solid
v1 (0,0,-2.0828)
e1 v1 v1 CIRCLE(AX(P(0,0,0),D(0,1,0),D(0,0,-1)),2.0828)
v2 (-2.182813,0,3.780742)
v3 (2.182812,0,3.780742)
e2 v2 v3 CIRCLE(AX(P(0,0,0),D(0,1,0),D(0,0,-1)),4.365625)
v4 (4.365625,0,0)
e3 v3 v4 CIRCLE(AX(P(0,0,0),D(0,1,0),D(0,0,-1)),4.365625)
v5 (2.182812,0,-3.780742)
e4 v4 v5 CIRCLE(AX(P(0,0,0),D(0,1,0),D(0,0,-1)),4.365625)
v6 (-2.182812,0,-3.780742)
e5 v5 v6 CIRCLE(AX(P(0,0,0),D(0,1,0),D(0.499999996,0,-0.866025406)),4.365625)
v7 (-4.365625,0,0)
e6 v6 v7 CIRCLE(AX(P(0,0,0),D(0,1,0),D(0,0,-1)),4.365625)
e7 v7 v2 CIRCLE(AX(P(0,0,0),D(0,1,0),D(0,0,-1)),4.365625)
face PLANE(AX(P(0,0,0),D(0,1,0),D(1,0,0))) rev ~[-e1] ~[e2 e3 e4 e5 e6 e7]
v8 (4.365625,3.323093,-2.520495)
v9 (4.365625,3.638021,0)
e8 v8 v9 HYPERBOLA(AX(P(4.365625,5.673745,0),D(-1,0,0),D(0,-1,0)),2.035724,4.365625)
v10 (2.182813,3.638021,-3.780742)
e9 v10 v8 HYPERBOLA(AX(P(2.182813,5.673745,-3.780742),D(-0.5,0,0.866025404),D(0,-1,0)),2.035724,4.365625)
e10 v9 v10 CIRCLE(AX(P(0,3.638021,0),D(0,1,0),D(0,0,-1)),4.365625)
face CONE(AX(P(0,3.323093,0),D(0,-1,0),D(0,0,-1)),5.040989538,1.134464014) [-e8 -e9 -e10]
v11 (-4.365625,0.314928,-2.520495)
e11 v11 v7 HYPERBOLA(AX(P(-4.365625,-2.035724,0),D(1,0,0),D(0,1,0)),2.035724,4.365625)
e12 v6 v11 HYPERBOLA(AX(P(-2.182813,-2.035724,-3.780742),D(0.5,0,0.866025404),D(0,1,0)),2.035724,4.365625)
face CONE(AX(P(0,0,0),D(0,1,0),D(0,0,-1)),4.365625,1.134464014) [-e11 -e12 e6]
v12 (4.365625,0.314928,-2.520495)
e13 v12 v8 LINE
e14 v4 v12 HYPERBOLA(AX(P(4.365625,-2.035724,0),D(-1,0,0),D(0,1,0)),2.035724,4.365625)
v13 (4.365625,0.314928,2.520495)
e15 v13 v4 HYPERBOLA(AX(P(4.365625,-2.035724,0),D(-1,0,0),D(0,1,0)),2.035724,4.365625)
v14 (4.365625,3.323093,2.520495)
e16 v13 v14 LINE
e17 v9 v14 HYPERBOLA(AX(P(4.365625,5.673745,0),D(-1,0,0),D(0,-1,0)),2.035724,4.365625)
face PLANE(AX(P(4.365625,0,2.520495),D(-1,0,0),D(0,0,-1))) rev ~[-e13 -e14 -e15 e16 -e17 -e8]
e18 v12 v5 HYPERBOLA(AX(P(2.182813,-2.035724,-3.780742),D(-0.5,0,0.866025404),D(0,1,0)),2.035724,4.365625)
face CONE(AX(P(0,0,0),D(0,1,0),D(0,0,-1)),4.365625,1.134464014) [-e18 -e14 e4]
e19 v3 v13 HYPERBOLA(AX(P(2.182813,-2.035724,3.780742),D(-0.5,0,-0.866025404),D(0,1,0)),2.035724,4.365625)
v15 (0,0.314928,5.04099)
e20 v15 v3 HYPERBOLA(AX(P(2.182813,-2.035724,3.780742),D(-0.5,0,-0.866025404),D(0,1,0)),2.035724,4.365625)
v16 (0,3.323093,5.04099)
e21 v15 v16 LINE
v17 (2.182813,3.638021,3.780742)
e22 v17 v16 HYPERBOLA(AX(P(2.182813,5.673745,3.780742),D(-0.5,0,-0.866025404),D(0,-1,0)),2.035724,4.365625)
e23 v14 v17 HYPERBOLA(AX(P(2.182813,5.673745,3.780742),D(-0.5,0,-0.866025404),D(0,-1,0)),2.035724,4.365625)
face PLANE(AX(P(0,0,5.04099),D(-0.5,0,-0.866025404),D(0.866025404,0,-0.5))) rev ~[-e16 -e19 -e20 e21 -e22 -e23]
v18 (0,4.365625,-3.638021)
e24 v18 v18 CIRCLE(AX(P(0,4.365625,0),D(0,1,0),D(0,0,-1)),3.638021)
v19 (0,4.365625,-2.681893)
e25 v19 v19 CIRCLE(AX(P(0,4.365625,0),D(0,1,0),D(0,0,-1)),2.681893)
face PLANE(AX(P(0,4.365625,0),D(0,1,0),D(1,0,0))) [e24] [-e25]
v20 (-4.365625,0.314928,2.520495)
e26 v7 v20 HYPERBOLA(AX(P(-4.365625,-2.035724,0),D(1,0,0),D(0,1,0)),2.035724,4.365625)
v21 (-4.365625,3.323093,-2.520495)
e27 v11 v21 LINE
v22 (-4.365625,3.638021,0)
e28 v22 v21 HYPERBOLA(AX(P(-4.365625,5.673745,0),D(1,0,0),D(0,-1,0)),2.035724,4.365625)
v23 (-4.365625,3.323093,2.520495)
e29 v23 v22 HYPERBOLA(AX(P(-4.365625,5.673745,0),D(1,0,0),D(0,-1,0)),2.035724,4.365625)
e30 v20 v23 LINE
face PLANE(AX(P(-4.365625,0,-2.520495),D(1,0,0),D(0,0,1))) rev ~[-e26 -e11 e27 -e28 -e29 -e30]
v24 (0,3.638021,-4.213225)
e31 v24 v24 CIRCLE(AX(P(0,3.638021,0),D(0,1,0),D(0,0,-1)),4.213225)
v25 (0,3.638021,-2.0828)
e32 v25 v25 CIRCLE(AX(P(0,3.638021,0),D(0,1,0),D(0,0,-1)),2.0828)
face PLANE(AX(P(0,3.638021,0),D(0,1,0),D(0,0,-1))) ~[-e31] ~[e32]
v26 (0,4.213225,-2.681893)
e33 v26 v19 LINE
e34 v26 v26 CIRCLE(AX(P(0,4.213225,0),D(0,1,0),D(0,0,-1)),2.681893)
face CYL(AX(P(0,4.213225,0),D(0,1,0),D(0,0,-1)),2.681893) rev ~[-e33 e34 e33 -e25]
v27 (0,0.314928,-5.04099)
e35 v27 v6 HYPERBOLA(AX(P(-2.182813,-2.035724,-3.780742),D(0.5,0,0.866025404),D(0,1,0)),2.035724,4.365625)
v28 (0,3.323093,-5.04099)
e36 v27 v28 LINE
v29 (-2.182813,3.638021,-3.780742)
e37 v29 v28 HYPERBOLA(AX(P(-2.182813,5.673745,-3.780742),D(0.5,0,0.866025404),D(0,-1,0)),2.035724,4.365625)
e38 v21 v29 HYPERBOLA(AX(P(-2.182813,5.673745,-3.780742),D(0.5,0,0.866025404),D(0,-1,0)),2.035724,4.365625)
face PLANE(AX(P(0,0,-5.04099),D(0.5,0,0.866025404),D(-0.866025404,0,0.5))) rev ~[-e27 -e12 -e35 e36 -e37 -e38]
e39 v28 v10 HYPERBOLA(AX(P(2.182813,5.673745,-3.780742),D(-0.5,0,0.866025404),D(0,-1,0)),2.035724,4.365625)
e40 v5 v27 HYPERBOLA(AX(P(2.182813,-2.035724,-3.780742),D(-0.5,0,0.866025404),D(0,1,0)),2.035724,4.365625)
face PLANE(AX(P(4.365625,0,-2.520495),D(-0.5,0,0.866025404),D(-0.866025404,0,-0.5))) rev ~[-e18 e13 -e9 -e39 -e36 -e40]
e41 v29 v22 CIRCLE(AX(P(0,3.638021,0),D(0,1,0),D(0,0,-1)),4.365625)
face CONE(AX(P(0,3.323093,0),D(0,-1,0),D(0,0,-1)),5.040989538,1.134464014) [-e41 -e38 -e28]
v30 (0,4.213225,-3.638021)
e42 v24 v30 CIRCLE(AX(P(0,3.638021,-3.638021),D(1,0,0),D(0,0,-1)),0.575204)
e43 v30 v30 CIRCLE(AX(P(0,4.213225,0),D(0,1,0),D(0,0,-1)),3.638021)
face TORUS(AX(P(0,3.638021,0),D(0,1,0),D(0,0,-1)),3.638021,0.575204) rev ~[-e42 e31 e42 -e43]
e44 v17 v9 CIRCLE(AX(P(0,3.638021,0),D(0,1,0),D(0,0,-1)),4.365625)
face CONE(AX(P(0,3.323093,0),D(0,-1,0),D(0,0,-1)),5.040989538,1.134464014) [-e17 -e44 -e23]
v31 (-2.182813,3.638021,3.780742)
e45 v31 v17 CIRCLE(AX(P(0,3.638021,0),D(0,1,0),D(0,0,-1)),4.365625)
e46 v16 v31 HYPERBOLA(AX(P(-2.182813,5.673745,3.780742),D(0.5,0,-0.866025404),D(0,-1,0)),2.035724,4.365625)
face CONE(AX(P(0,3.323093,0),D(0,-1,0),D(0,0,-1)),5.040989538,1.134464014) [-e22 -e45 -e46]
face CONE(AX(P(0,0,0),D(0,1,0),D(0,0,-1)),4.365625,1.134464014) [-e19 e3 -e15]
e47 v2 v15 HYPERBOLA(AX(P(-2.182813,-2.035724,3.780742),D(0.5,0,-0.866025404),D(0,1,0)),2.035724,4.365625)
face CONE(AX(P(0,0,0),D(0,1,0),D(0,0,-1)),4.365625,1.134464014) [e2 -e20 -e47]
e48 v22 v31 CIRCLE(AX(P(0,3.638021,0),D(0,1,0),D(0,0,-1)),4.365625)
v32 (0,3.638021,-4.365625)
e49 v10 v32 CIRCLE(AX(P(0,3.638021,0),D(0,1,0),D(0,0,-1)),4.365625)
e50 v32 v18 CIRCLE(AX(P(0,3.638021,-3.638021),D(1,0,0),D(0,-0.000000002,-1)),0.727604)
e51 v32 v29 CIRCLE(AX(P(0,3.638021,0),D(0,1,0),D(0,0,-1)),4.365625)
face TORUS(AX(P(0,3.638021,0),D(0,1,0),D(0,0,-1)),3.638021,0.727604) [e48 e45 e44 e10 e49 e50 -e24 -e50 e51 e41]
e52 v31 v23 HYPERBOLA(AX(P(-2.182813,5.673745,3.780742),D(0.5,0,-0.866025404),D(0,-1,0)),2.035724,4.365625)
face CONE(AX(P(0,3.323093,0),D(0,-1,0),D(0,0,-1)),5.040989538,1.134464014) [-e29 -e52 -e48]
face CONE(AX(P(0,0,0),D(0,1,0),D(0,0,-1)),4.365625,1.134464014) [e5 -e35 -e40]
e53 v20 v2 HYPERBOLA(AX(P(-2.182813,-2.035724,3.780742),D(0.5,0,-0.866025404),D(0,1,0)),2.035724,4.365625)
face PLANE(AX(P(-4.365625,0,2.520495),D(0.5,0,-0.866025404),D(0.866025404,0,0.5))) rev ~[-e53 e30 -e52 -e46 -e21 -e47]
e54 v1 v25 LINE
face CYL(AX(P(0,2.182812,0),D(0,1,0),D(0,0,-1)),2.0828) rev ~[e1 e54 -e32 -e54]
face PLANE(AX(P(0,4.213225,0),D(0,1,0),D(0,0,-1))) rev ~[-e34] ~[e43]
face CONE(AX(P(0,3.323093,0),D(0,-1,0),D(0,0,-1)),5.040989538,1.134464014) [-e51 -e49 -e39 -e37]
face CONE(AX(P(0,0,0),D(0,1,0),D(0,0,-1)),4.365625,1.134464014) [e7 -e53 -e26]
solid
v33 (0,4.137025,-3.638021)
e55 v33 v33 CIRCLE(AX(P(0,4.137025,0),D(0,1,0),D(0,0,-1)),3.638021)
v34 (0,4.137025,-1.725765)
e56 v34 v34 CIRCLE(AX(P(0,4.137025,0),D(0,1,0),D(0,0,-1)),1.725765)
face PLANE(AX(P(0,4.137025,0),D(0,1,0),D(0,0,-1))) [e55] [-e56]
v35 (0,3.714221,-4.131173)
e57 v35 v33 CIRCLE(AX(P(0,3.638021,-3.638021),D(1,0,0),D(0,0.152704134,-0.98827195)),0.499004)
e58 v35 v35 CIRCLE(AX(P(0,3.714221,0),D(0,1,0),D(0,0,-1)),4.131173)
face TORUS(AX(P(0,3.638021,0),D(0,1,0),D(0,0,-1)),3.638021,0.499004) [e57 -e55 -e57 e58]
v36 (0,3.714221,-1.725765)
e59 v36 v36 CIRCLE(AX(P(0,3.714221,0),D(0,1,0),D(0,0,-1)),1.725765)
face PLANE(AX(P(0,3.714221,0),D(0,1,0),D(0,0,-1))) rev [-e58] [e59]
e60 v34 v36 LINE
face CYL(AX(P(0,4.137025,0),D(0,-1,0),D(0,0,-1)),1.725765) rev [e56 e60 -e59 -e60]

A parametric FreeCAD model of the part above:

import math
import FreeCAD as App
import Part
import Sketcher
from FreeCAD import Vector
Q = App.Units.Quantity

doc = App.newDocument("Part")
body = doc.addObject("PartDesign::Body", "Body")

# Sketch on XZ plane
sketch1 = doc.addObject("Sketcher::SketchObject", "Sketch")
body.addObject(sketch1)
sketch1.AttachmentSupport = (doc.XZ_Plane, [""])
sketch1.MapMode = "FlatFace"
sketch1.addGeometry([
    Part.LineSegment(Vector(0, -5.04099, 0), Vector(-4.365625, -2.520495, 0)),  # 0
    Part.LineSegment(Vector(-4.365625, -2.520495, 0), Vector(-4.365625, 2.520495, 0)),  # 1
    Part.LineSegment(Vector(-4.365625, 2.520495, 0), Vector(0, 5.04099, 0)),  # 2
    Part.LineSegment(Vector(0, 5.04099, 0), Vector(4.365625, 2.520495, 0)),  # 3
    Part.LineSegment(Vector(4.365625, 2.520495, 0), Vector(4.365625, -2.520495, 0)),  # 4
    Part.LineSegment(Vector(4.365625, -2.520495, 0), Vector(0, -5.04099, 0)),  # 5
], False)
sketch1.addConstraint([
    Sketcher.Constraint("Coincident", 0, 2, 1, 1),
    Sketcher.Constraint("Coincident", 1, 2, 2, 1),
    Sketcher.Constraint("Coincident", 2, 2, 3, 1),
    Sketcher.Constraint("Coincident", 3, 2, 4, 1),
    Sketcher.Constraint("Coincident", 4, 2, 5, 1),
    Sketcher.Constraint("Coincident", 5, 2, 0, 1),
    Sketcher.Constraint("Vertical", 1),
    Sketcher.Constraint("Vertical", 4),
    Sketcher.Constraint("Symmetric", 0, 2, 3, 2, -1, 1),
    Sketcher.Constraint("Symmetric", 2, 2, 5, 2, -1, 1),
    Sketcher.Constraint("PointOnObject", 2, 2, -2),
    Sketcher.Constraint("Parallel", 2, 5),
    Sketcher.Constraint("Horizontal", 1, 2, 3, 2),
    Sketcher.Constraint("Angle", 0, Q("150 deg")),
    Sketcher.Constraint("DistanceX", 0, 2, -1, 1, Q("0.171875 in")),
    Sketcher.Constraint("DistanceY", 1, 1, 1, 2, Q("5.04099 mm")),
])
pad1 = doc.addObject("PartDesign::Pad", "Pad")
body.addObject(pad1)
pad1.Profile = sketch1
pad1.Length = Q("0.171875 in")
pad1.Reversed = True
body2 = doc.addObject("PartDesign::Body", "Body001")

# Sketch on YZ plane
sketch2 = doc.addObject("Sketcher::SketchObject", "Sketch001")
body2.addObject(sketch2)
sketch2.AttachmentSupport = (doc.getObject("YZ_Plane001"), [""])
sketch2.MapMode = "FlatFace"
sketch2.addGeometry([
    Part.LineSegment(Vector(4.365625, 0, 0), Vector(0, 0, 0)),
    Part.LineSegment(Vector(0, 0, 0), Vector(0, -2.0828, 0)),
    Part.LineSegment(Vector(0, -2.0828, 0), Vector(4.365625, -2.0828, 0)),
    Part.LineSegment(Vector(4.365625, -2.0828, 0), Vector(4.365625, 0, 0)),
], False)
sketch2.addConstraint([
    Sketcher.Constraint("Coincident", 0, 2, 1, 1),
    Sketcher.Constraint("Coincident", 1, 2, 2, 1),
    Sketcher.Constraint("Coincident", 2, 2, 3, 1),
    Sketcher.Constraint("Coincident", 3, 2, 0, 1),
    Sketcher.Constraint("Horizontal", 0),
    Sketcher.Constraint("Vertical", 1),
    Sketcher.Constraint("Horizontal", 2),
    Sketcher.Constraint("Vertical", 3),
    Sketcher.Constraint("Coincident", 0, 2, -1, 1),
    Sketcher.Constraint("DistanceX", 0, 2, 0, 1, Q("0.171875 in")),
    Sketcher.Constraint("DistanceY", 1, 2, 1, 1, Q("0.082 in")),
])
revolution = doc.addObject("PartDesign::Revolution", "Revolution")
body2.addObject(revolution)
revolution.Profile = sketch2
revolution.ReferenceAxis = (sketch2, ["H_Axis"])
revolution.Angle = 360
doc.recompute()

boolean = doc.addObject("PartDesign::Boolean", "Boolean")
body.addObject(boolean)
boolean.Type = "Cut"
boolean.addObjects([body2])

# Sketch on YZ plane
sketch3 = doc.addObject("Sketcher::SketchObject", "Sketch002")
body.addObject(sketch3)
sketch3.AttachmentSupport = (doc.YZ_Plane, [""])
sketch3.MapMode = "FlatFace"
sketch3.addGeometry([
    Part.LineSegment(Vector(0, -4.365625, 0), Vector(0, 0, 0)),  # 0
    Part.LineSegment(Vector(0, 0, 0), Vector(-1.27, 0, 0)),  # 1
    Part.LineSegment(Vector(-1.27, 0, 0), Vector(-1.27, -6.31099, 0)),  # 2
    Part.LineSegment(Vector(-1.27, -6.31099, 0), Vector(5.635625, -6.31099, 0)),  # 3
    Part.LineSegment(Vector(5.635625, -6.31099, 0), Vector(5.635625, -3.638021, 0)),  # 4
    Part.LineSegment(Vector(5.635625, -3.638021, 0), Vector(4.365625, -3.638021, 0)),  # 5
    Part.ArcOfCircle(Part.Circle(Vector(3.638021, -3.638021, 0), Vector(0, 0, 1), 0.727604), math.radians(-90), math.radians(0)),  # 6
    Part.LineSegment(Vector(3.638021, -4.365625, 0), Vector(3.323093, -5.04099, 0)),  # 7
    Part.LineSegment(Vector(3.323093, -5.04099, 0), Vector(0.314928, -5.04099, 0)),  # 8
    Part.LineSegment(Vector(0.314928, -5.04099, 0), Vector(0, -4.365625, 0)),  # 9
], False)
sketch3.addConstraint([
    Sketcher.Constraint("Coincident", 0, 2, 1, 1),
    Sketcher.Constraint("Coincident", 1, 2, 2, 1),
    Sketcher.Constraint("Coincident", 2, 2, 3, 1),
    Sketcher.Constraint("Coincident", 3, 2, 4, 1),
    Sketcher.Constraint("Coincident", 4, 2, 5, 1),
    Sketcher.Constraint("Coincident", 5, 2, 6, 2),
    Sketcher.Constraint("Coincident", 6, 1, 7, 1),
    Sketcher.Constraint("Coincident", 7, 2, 8, 1),
    Sketcher.Constraint("Coincident", 8, 2, 9, 1),
    Sketcher.Constraint("Coincident", 9, 2, 0, 1),
    Sketcher.Constraint("Vertical", 0),
    Sketcher.Constraint("Horizontal", 1),
    Sketcher.Constraint("Vertical", 2),
    Sketcher.Constraint("Horizontal", 3),
    Sketcher.Constraint("Vertical", 4),
    Sketcher.Constraint("Horizontal", 5),
    Sketcher.Constraint("Horizontal", 8),
    Sketcher.Constraint("Coincident", 0, 2, -1, 1),
    Sketcher.Constraint("Horizontal", 6, 3, 4, 2),
    Sketcher.Constraint("Horizontal", 6, 1, 9, 2),
    Sketcher.Constraint("Equal", 1, 5),
    Sketcher.Constraint("Equal", 7, 9),
    Sketcher.Constraint("Angle", 7, Q("-115 deg")),
    Sketcher.Constraint("DistanceX", 1, 2, 1, 1, Q("0.05 in")),
    Sketcher.Constraint("DistanceY", 0, 1, 0, 2, Q("0.171875 in")),
    Sketcher.Constraint("DistanceY", 3, 2, 7, 2, Q("0.05 in")),
    Sketcher.Constraint("DistanceX", -1, 1, 5, 2, Q("0.171875 in")),
    Sketcher.Constraint("Radius", 6, Q("0.727604 mm")),
    Sketcher.Constraint("DistanceY", 2, 2, 2, 1, Q("6.31099 mm")),
    Sketcher.Constraint("DistanceX", 8, 2, 8, 1, Q("3.008166 mm")),
])
groove = doc.addObject("PartDesign::Groove", "Groove")
body.addObject(groove)
groove.Profile = sketch3
groove.ReferenceAxis = (sketch3, ["H_Axis"])
groove.Angle = 360

# Sketch on YZ plane
sketch4 = doc.addObject("Sketcher::SketchObject", "Sketch003")
body.addObject(sketch4)
sketch4.AttachmentSupport = (doc.YZ_Plane, [""])
sketch4.MapMode = "FlatFace"
sketch4.addGeometry([
    Part.LineSegment(Vector(3.638021, 0, 0), Vector(3.638021, -4.213225, 0)),  # 0
    Part.ArcOfCircle(Part.Circle(Vector(3.638021, -3.638021, 0), Vector(0, 0, 1), 0.575204), math.radians(-90), math.radians(0)),  # 1
    Part.LineSegment(Vector(4.213225, -3.638021, 0), Vector(4.213225, -2.681893, 0)),  # 2
    Part.LineSegment(Vector(4.213225, -2.681893, 0), Vector(5.635625, -2.681893, 0)),  # 3
    Part.LineSegment(Vector(5.635625, -2.681893, 0), Vector(5.635625, 0, 0)),  # 4
    Part.LineSegment(Vector(5.635625, 0, 0), Vector(3.638021, 0, 0)),  # 5
], False)
sketch4.addConstraint([
    Sketcher.Constraint("Coincident", 0, 2, 1, 1),
    Sketcher.Constraint("Tangent", 1, 2, 2, 1),
    Sketcher.Constraint("Coincident", 2, 2, 3, 1),
    Sketcher.Constraint("Coincident", 3, 2, 4, 1),
    Sketcher.Constraint("Coincident", 4, 2, 5, 1),
    Sketcher.Constraint("Coincident", 5, 2, 0, 1),
    Sketcher.Constraint("Vertical", 0),
    Sketcher.Constraint("Vertical", 2),
    Sketcher.Constraint("Horizontal", 3),
    Sketcher.Constraint("Vertical", 4),
    Sketcher.Constraint("Horizontal", 5),
    Sketcher.Constraint("PointOnObject", 4, 2, -1),
    Sketcher.Constraint("Vertical", 1, 3, 0, 2),
    Sketcher.Constraint("DistanceX", 3, 1, 3, 2, Q("0.056 in")),
    Sketcher.Constraint("Radius", 1, Q("0.575204 mm")),
    Sketcher.Constraint("DistanceY", 0, 2, 0, 1, Q("4.213225 mm")),
    Sketcher.Constraint("DistanceY", 2, 1, 2, 2, Q("0.956128 mm")),
    Sketcher.Constraint("DistanceX", -1, 1, 1, 3, Q("3.638021 mm")),
])
groove2 = doc.addObject("PartDesign::Groove", "Groove001")
body.addObject(groove2)
groove2.Profile = sketch4
groove2.ReferenceAxis = (sketch4, ["H_Axis"])
groove2.Angle = 360
body3 = doc.addObject("PartDesign::Body", "Body002")

# Sketch on YZ plane
sketch5 = doc.addObject("Sketcher::SketchObject", "Sketch004")
body3.addObject(sketch5)
sketch5.AttachmentSupport = (doc.getObject("YZ_Plane002"), [""])
sketch5.MapMode = "FlatFace"
sketch5.addGeometry([
    Part.LineSegment(Vector(3.714221, -1.725765, 0), Vector(3.714221, -4.131173, 0)),
    Part.ArcOfCircle(Part.Circle(Vector(3.638021, -3.638021, 0), Vector(0, 0, 1), 0.499004), math.radians(-81.216332), math.radians(0)),
    Part.LineSegment(Vector(4.137025, -3.638021, 0), Vector(4.137025, -1.725765, 0)),
    Part.LineSegment(Vector(4.137025, -1.725765, 0), Vector(3.714221, -1.725765, 0)),
], False)
sketch5.addConstraint([
    Sketcher.Constraint("Coincident", 0, 2, 1, 1),
    Sketcher.Constraint("Tangent", 1, 2, 2, 1),
    Sketcher.Constraint("Coincident", 2, 2, 3, 1),
    Sketcher.Constraint("Coincident", 3, 2, 0, 1),
    Sketcher.Constraint("Vertical", 0),
    Sketcher.Constraint("Vertical", 2),
    Sketcher.Constraint("Horizontal", 3),
    Sketcher.Constraint("DistanceX", 1, 3, 0, 2, Q("0.003 in")),
    Sketcher.Constraint("Radius", 1, Q("0.499004 mm")),
    Sketcher.Constraint("DistanceY", 0, 2, 0, 1, Q("2.405407 mm")),
    Sketcher.Constraint("DistanceX", -1, 1, 1, 3, Q("3.638021 mm")),
    Sketcher.Constraint("DistanceY", 1, 3, -1, 1, Q("3.638021 mm")),
])
revolution2 = doc.addObject("PartDesign::Revolution", "Revolution001")
body3.addObject(revolution2)
revolution2.Profile = sketch5
revolution2.ReferenceAxis = (sketch5, ["H_Axis"])
revolution2.Angle = 360

doc.recompute()
